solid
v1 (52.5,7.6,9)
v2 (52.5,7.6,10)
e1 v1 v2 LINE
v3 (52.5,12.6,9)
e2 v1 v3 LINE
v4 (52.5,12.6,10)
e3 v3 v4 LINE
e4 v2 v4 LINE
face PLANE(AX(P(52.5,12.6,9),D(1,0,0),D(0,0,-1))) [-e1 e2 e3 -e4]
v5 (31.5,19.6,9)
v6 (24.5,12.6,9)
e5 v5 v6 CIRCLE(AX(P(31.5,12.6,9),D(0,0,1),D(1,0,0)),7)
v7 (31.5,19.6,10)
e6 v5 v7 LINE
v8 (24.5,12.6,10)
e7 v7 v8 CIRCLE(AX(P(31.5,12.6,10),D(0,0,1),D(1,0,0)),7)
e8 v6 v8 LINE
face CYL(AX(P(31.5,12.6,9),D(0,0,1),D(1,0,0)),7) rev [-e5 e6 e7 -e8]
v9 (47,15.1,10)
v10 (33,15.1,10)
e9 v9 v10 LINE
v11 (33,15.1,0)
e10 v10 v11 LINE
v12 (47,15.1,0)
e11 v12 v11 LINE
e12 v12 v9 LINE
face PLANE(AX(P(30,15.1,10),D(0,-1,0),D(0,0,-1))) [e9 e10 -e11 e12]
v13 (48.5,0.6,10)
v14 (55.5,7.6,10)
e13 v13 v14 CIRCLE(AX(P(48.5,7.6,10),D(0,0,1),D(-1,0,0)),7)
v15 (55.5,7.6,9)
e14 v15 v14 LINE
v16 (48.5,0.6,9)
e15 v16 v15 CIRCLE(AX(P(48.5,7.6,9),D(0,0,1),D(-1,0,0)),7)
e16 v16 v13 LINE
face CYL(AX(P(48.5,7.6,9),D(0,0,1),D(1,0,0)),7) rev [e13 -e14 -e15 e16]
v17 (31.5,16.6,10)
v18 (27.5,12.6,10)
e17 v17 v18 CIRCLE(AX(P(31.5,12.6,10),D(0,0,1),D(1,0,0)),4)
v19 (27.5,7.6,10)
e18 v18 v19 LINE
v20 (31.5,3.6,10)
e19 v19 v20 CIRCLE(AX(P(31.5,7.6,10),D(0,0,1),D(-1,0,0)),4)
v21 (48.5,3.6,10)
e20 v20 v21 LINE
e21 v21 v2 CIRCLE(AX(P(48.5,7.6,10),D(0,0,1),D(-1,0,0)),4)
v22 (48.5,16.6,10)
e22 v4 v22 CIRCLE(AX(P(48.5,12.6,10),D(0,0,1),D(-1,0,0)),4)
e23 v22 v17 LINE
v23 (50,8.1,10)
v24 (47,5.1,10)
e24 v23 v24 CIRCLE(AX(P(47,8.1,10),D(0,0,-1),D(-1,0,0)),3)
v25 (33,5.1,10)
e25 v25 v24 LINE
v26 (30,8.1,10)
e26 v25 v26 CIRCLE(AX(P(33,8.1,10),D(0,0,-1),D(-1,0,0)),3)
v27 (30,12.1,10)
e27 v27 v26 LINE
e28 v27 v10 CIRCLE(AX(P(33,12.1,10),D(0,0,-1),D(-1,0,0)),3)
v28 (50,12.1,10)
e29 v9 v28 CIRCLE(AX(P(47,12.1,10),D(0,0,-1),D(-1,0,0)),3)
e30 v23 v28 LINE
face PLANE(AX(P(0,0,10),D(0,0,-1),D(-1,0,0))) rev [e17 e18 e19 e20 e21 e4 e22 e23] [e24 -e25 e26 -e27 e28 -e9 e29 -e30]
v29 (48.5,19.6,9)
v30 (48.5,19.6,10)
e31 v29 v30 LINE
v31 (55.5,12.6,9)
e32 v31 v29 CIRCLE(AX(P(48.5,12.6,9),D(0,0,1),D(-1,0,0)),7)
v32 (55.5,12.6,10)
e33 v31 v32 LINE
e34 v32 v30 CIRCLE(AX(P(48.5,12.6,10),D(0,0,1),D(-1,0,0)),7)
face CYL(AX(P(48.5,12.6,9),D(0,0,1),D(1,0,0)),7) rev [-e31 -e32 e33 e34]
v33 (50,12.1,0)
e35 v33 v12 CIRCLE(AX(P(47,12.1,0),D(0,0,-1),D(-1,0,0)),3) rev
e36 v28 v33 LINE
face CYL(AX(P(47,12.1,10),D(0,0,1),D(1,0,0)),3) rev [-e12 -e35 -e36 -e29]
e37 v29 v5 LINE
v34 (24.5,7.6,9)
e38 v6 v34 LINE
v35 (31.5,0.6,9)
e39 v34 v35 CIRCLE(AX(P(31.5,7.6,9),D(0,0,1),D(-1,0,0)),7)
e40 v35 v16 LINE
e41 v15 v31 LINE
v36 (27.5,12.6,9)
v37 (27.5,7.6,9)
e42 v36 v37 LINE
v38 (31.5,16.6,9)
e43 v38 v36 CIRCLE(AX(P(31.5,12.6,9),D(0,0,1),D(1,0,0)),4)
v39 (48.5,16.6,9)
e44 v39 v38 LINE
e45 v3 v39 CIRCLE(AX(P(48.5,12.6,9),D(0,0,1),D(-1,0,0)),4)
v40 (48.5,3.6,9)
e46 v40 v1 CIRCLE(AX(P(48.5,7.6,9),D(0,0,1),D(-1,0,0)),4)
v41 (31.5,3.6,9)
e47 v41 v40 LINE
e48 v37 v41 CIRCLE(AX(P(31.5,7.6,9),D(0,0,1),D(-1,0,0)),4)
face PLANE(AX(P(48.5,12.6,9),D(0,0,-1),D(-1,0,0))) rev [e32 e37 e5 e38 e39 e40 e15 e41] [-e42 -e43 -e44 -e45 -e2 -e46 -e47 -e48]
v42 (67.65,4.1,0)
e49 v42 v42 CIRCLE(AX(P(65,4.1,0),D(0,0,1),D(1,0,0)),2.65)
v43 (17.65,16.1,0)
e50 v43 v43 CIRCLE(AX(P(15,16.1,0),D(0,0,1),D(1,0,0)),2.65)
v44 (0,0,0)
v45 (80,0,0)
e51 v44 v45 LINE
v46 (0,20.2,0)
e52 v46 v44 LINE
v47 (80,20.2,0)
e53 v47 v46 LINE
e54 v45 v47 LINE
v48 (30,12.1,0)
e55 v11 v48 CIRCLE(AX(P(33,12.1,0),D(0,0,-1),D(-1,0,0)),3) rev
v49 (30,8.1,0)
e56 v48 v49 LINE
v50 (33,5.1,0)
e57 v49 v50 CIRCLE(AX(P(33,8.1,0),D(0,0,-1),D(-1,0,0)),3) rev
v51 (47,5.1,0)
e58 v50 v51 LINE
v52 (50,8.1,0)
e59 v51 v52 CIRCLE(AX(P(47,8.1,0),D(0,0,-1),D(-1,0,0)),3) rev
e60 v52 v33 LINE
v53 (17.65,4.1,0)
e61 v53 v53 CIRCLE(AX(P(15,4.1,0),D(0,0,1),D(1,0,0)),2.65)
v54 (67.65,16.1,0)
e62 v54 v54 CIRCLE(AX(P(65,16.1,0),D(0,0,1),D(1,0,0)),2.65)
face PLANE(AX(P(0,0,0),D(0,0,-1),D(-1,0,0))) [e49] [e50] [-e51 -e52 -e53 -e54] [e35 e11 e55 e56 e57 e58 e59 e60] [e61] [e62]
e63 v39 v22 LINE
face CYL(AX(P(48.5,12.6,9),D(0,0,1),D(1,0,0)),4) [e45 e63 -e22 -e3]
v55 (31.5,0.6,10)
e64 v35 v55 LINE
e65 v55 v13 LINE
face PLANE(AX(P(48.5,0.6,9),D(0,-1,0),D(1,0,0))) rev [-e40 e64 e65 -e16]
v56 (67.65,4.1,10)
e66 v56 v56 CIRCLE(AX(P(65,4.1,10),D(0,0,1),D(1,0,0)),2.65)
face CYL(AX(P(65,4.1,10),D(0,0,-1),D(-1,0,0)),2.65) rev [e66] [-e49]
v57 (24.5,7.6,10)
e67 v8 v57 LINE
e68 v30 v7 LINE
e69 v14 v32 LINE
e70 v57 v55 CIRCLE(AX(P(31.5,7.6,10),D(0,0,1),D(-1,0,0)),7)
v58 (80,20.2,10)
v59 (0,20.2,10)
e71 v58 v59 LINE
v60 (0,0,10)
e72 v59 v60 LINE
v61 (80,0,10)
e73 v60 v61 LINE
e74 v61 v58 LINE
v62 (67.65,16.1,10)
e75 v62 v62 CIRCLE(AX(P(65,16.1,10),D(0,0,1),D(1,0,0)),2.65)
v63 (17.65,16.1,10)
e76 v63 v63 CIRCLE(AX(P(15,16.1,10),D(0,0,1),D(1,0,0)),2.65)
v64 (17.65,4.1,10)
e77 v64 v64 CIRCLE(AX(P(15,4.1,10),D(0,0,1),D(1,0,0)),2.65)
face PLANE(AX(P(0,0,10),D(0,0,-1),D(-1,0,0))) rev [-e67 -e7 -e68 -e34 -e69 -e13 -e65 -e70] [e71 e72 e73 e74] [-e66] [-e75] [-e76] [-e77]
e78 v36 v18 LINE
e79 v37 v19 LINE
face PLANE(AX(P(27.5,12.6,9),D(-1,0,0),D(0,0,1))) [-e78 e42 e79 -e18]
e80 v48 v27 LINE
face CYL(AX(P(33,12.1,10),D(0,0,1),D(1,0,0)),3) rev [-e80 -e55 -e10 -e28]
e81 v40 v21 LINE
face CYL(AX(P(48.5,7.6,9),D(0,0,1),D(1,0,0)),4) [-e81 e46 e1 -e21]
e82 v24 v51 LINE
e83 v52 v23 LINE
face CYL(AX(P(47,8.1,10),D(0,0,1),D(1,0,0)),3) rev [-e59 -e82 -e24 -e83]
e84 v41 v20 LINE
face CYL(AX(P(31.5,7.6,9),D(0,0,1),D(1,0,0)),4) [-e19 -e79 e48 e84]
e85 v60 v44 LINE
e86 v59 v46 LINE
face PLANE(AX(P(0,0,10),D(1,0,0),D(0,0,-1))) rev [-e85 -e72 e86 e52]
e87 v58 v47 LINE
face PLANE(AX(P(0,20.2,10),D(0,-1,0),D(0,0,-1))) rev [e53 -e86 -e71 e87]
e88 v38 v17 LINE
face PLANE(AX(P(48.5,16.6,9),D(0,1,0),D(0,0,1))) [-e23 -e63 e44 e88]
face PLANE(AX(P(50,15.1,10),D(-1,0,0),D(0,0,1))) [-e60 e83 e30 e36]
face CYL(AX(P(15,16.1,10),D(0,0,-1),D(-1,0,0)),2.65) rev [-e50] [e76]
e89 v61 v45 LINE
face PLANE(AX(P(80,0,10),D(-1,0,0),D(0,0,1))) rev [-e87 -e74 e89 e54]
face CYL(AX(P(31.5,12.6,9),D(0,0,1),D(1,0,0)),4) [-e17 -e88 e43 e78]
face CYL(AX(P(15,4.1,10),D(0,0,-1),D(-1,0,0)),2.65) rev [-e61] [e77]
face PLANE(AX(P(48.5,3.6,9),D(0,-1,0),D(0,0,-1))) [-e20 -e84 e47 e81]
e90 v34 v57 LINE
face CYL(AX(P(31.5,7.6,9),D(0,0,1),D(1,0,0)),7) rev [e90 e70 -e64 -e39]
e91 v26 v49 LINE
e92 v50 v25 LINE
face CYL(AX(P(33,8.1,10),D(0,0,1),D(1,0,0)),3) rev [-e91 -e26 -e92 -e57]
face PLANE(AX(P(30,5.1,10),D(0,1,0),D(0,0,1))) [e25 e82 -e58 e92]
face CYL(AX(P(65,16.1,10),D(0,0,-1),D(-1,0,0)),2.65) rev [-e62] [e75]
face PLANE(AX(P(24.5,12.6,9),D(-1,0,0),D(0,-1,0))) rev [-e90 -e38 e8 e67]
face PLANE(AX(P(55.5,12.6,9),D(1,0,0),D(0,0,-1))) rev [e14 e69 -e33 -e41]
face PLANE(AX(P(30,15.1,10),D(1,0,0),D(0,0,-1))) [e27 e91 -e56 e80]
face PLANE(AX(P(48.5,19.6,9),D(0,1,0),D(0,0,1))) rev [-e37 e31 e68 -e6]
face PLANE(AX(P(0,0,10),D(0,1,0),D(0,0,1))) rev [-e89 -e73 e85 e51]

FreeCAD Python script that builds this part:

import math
import FreeCAD as App
import Part
import Sketcher

V = App.Vector


def edges_at(feature, points):
    """Names of the edges that pass closest to the given points."""
    edges = feature.Shape.Edges
    near = lambda p: min(range(len(edges)), key=lambda i: edges[i].distToShape(Part.Vertex(*p))[0])
    return sorted({f"Edge{near(p) + 1}" for p in points})

doc = App.newDocument("Part")
params = doc.addObject("Spreadsheet::Sheet", "Params")
for row, (alias, value) in enumerate([
    ("sketch1_diameter", "5.3 mm"),
    ("sketch1_width", "80 mm"),
    ("sketch1_width2", "20 mm"),
    ("sketch1_height", "10 mm"),
    ("sketch1_height2", "20.2 mm"),
    ("pad1_length", "10 mm"),
    ("fillet_radius", "3 mm"),
    ("sketch2_radius", "7 mm"),
    ("sketch2_radius2", "4 mm"),
    ("sketch2_width", "17 mm"),
    ("sketch2_height", "5 mm"),
    ("pocket1_length", "1 mm"),
], start=1):
    params.set(f"A{row}", alias)
    params.set(f"B{row}", "=" + value)
    params.setAlias(f"B{row}", alias)

body = doc.addObject("PartDesign::Body", "Body")

# Sketch on XY plane
sketch1 = doc.addObject("Sketcher::SketchObject", "Sketch")
body.addObject(sketch1)
sketch1.AttachmentSupport = (doc.XY_Plane, [""])
sketch1.MapMode = "FlatFace"
sketch1.addGeometry([
    Part.LineSegment(V(0, 20.2, 0), V(0, 0, 0)),  # 0
    Part.LineSegment(V(0, 0, 0), V(80, 0, 0)),  # 1
    Part.LineSegment(V(80, 0, 0), V(80, 20.2, 0)),  # 2
    Part.LineSegment(V(80, 20.2, 0), V(0, 20.2, 0)),  # 3
    Part.Circle(V(15, 4.1, 0), V(0, 0, 1), 2.65),  # 4
    Part.Circle(V(65, 4.1, 0), V(0, 0, 1), 2.65),  # 5
    Part.Circle(V(15, 16.1, 0), V(0, 0, 1), 2.65),  # 6
    Part.LineSegment(V(50, 5.1, 0), V(30, 5.1, 0)),  # 7
    Part.LineSegment(V(30, 5.1, 0), V(30, 15.1, 0)),  # 8
    Part.LineSegment(V(30, 15.1, 0), V(50, 15.1, 0)),  # 9
    Part.LineSegment(V(50, 15.1, 0), V(50, 5.1, 0)),  # 10
    Part.Circle(V(65, 16.1, 0), V(0, 0, 1), 2.65),  # 11
], False)
sketch1.addConstraint([
    Sketcher.Constraint("Coincident", 0, 2, 1, 1),
    Sketcher.Constraint("Coincident", 1, 2, 2, 1),
    Sketcher.Constraint("Coincident", 2, 2, 3, 1),
    Sketcher.Constraint("Coincident", 3, 2, 0, 1),
    Sketcher.Constraint("Coincident", 7, 2, 8, 1),
    Sketcher.Constraint("Coincident", 8, 2, 9, 1),
    Sketcher.Constraint("Coincident", 9, 2, 10, 1),
    Sketcher.Constraint("Coincident", 10, 2, 7, 1),
    Sketcher.Constraint("Vertical", 0),
    Sketcher.Constraint("Horizontal", 1),
    Sketcher.Constraint("Vertical", 2),
    Sketcher.Constraint("Horizontal", 3),
    Sketcher.Constraint("Horizontal", 7),
    Sketcher.Constraint("Vertical", 8),
    Sketcher.Constraint("Horizontal", 9),
    Sketcher.Constraint("Vertical", 10),
    Sketcher.Constraint("Coincident", 0, 2, -1, 1),
    Sketcher.Constraint("Equal", 4, 5),
    Sketcher.Constraint("Equal", 5, 6),
    Sketcher.Constraint("Equal", 6, 11),
    Sketcher.Constraint("Horizontal", 4, 3, 5, 3),
    Sketcher.Constraint("Horizontal", 6, 3, 11, 3),
    Sketcher.Constraint("Vertical", 4, 3, 6, 3),
    Sketcher.Constraint("Vertical", 5, 3, 11, 3),
    Sketcher.Constraint("Diameter", 4, 5.3),
    Sketcher.Constraint("DistanceX", 1, 1, 1, 2, 80.0),
    Sketcher.Constraint("DistanceX", 7, 2, 7, 1, 20.0),
    Sketcher.Constraint("DistanceY", 8, 1, 8, 2, 10.0),
    Sketcher.Constraint("DistanceY", 0, 2, 0, 1, 20.2),
    Sketcher.Constraint("DistanceX", -1, 1, 4, 3, 15.0),
    Sketcher.Constraint("DistanceX", -1, 1, 5, 3, 65.0),
    Sketcher.Constraint("DistanceX", -1, 1, 7, 2, 30.0),
    Sketcher.Constraint("DistanceY", 4, 3, 6, 3, 12.0),
    Sketcher.Constraint("DistanceY", 4, 3, 7, 2, 1.0),
    Sketcher.Constraint("DistanceY", -1, 1, 4, 3, 4.1),
])
sketch1.setExpression("Constraints[24]", "Params.sketch1_diameter")
sketch1.setExpression("Constraints[25]", "Params.sketch1_width")
sketch1.setExpression("Constraints[26]", "Params.sketch1_width2")
sketch1.setExpression("Constraints[27]", "Params.sketch1_height")
sketch1.setExpression("Constraints[28]", "Params.sketch1_height2")
pad1 = doc.addObject("PartDesign::Pad", "Pad")
body.addObject(pad1)
pad1.Profile = sketch1
pad1.setExpression("Length", "Params.pad1_length")
doc.recompute()

fillet = doc.addObject("PartDesign::Fillet", "Fillet")
body.addObject(fillet)
fillet.Base = (pad1, edges_at(pad1, [
    (50, 5.1, 5),
    (50, 15.1, 5),
    (30, 15.1, 5),
    (30, 5.1, 5),
]))
fillet.setExpression("Radius", "Params.fillet_radius")

# Sketch on XY plane
sketch2 = doc.addObject("Sketcher::SketchObject", "Sketch001")
body.addObject(sketch2)
sketch2.AttachmentSupport = (doc.XY_Plane, [""])
sketch2.MapMode = "FlatFace"
sketch2.AttachmentOffset = App.Placement(V(0, 0, 10), App.Rotation())
sketch2.addGeometry([
    Part.LineSegment(V(55.5, 7.6, 0), V(55.5, 12.6, 0)),  # 0
    Part.ArcOfCircle(Part.Circle(V(48.5, 12.6, 0), V(0, 0, 1), 7), math.radians(0), math.radians(90)),  # 1
    Part.LineSegment(V(48.5, 19.6, 0), V(31.5, 19.6, 0)),  # 2
    Part.ArcOfCircle(Part.Circle(V(31.5, 12.6, 0), V(0, 0, 1), 7), math.radians(90), math.radians(180)),  # 3
    Part.LineSegment(V(24.5, 12.6, 0), V(24.5, 7.6, 0)),  # 4
    Part.ArcOfCircle(Part.Circle(V(31.5, 7.6, 0), V(0, 0, 1), 7), math.radians(-180), math.radians(-90)),  # 5
    Part.LineSegment(V(31.5, 0.6, 0), V(48.5, 0.6, 0)),  # 6
    Part.ArcOfCircle(Part.Circle(V(48.5, 7.6, 0), V(0, 0, 1), 7), math.radians(-90), math.radians(0)),  # 7
    Part.ArcOfCircle(Part.Circle(V(48.5, 12.6, 0), V(0, 0, 1), 4), math.radians(0), math.radians(90)),  # 8
    Part.LineSegment(V(52.5, 12.6, 0), V(52.5, 7.6, 0)),  # 9
    Part.ArcOfCircle(Part.Circle(V(48.5, 7.6, 0), V(0, 0, 1), 4), math.radians(-90), math.radians(0)),  # 10
    Part.LineSegment(V(48.5, 3.6, 0), V(31.5, 3.6, 0)),  # 11
    Part.ArcOfCircle(Part.Circle(V(31.5, 7.6, 0), V(0, 0, 1), 4), math.radians(180), math.radians(270)),  # 12
    Part.LineSegment(V(27.5, 7.6, 0), V(27.5, 12.6, 0)),  # 13
    Part.ArcOfCircle(Part.Circle(V(31.5, 12.6, 0), V(0, 0, 1), 4), math.radians(90), math.radians(180)),  # 14
    Part.LineSegment(V(31.5, 16.6, 0), V(48.5, 16.6, 0)),  # 15
], False)
sketch2.addConstraint([
    Sketcher.Constraint("Tangent", 0, 2, 1, 1),
    Sketcher.Constraint("Tangent", 1, 2, 2, 1),
    Sketcher.Constraint("Tangent", 2, 2, 3, 1),
    Sketcher.Constraint("Tangent", 3, 2, 4, 1),
    Sketcher.Constraint("Tangent", 4, 2, 5, 1),
    Sketcher.Constraint("Tangent", 5, 2, 6, 1),
    Sketcher.Constraint("Tangent", 6, 2, 7, 1),
    Sketcher.Constraint("Tangent", 7, 2, 0, 1),
    Sketcher.Constraint("Tangent", 8, 1, 9, 1),
    Sketcher.Constraint("Tangent", 9, 2, 10, 2),
    Sketcher.Constraint("Tangent", 10, 1, 11, 1),
    Sketcher.Constraint("Tangent", 11, 2, 12, 2),
    Sketcher.Constraint("Tangent", 12, 1, 13, 1),
    Sketcher.Constraint("Tangent", 13, 2, 14, 2),
    Sketcher.Constraint("Tangent", 14, 1, 15, 1),
    Sketcher.Constraint("Tangent", 15, 2, 8, 2),
    Sketcher.Constraint("Vertical", 0),
    Sketcher.Constraint("Horizontal", 2),
    Sketcher.Constraint("Vertical", 4),
    Sketcher.Constraint("Horizontal", 6),
    Sketcher.Constraint("Vertical", 9),
    Sketcher.Constraint("Horizontal", 11),
    Sketcher.Constraint("Vertical", 13),
    Sketcher.Constraint("Horizontal", 15),
    Sketcher.Constraint("Coincident", 8, 3, 1, 3),
    Sketcher.Constraint("Coincident", 10, 3, 7, 3),
    Sketcher.Constraint("Coincident", 12, 3, 5, 3),
    Sketcher.Constraint("Equal", 1, 3),
    Sketcher.Constraint("Equal", 3, 5),
    Sketcher.Constraint("Equal", 5, 7),
    Sketcher.Constraint("Equal", 12, 14),
    Sketcher.Constraint("Radius", 1, 7.0),
    Sketcher.Constraint("Radius", 8, 4.0),
    Sketcher.Constraint("DistanceX", 2, 2, 2, 1, 17.0),
    Sketcher.Constraint("DistanceY", 0, 1, 0, 2, 5.0),
    Sketcher.Constraint("DistanceX", -1, 1, 1, 3, 48.5),
    Sketcher.Constraint("DistanceY", -1, 1, 1, 3, 12.6),
])
sketch2.setExpression("Constraints[31]", "Params.sketch2_radius")
sketch2.setExpression("Constraints[32]", "Params.sketch2_radius2")
sketch2.setExpression("Constraints[33]", "Params.sketch2_width")
sketch2.setExpression("Constraints[34]", "Params.sketch2_height")
pocket1 = doc.addObject("PartDesign::Pocket", "Pocket")
body.addObject(pocket1)
pocket1.Profile = sketch2
pocket1.setExpression("Length", "Params.pocket1_length")

doc.recompute()
